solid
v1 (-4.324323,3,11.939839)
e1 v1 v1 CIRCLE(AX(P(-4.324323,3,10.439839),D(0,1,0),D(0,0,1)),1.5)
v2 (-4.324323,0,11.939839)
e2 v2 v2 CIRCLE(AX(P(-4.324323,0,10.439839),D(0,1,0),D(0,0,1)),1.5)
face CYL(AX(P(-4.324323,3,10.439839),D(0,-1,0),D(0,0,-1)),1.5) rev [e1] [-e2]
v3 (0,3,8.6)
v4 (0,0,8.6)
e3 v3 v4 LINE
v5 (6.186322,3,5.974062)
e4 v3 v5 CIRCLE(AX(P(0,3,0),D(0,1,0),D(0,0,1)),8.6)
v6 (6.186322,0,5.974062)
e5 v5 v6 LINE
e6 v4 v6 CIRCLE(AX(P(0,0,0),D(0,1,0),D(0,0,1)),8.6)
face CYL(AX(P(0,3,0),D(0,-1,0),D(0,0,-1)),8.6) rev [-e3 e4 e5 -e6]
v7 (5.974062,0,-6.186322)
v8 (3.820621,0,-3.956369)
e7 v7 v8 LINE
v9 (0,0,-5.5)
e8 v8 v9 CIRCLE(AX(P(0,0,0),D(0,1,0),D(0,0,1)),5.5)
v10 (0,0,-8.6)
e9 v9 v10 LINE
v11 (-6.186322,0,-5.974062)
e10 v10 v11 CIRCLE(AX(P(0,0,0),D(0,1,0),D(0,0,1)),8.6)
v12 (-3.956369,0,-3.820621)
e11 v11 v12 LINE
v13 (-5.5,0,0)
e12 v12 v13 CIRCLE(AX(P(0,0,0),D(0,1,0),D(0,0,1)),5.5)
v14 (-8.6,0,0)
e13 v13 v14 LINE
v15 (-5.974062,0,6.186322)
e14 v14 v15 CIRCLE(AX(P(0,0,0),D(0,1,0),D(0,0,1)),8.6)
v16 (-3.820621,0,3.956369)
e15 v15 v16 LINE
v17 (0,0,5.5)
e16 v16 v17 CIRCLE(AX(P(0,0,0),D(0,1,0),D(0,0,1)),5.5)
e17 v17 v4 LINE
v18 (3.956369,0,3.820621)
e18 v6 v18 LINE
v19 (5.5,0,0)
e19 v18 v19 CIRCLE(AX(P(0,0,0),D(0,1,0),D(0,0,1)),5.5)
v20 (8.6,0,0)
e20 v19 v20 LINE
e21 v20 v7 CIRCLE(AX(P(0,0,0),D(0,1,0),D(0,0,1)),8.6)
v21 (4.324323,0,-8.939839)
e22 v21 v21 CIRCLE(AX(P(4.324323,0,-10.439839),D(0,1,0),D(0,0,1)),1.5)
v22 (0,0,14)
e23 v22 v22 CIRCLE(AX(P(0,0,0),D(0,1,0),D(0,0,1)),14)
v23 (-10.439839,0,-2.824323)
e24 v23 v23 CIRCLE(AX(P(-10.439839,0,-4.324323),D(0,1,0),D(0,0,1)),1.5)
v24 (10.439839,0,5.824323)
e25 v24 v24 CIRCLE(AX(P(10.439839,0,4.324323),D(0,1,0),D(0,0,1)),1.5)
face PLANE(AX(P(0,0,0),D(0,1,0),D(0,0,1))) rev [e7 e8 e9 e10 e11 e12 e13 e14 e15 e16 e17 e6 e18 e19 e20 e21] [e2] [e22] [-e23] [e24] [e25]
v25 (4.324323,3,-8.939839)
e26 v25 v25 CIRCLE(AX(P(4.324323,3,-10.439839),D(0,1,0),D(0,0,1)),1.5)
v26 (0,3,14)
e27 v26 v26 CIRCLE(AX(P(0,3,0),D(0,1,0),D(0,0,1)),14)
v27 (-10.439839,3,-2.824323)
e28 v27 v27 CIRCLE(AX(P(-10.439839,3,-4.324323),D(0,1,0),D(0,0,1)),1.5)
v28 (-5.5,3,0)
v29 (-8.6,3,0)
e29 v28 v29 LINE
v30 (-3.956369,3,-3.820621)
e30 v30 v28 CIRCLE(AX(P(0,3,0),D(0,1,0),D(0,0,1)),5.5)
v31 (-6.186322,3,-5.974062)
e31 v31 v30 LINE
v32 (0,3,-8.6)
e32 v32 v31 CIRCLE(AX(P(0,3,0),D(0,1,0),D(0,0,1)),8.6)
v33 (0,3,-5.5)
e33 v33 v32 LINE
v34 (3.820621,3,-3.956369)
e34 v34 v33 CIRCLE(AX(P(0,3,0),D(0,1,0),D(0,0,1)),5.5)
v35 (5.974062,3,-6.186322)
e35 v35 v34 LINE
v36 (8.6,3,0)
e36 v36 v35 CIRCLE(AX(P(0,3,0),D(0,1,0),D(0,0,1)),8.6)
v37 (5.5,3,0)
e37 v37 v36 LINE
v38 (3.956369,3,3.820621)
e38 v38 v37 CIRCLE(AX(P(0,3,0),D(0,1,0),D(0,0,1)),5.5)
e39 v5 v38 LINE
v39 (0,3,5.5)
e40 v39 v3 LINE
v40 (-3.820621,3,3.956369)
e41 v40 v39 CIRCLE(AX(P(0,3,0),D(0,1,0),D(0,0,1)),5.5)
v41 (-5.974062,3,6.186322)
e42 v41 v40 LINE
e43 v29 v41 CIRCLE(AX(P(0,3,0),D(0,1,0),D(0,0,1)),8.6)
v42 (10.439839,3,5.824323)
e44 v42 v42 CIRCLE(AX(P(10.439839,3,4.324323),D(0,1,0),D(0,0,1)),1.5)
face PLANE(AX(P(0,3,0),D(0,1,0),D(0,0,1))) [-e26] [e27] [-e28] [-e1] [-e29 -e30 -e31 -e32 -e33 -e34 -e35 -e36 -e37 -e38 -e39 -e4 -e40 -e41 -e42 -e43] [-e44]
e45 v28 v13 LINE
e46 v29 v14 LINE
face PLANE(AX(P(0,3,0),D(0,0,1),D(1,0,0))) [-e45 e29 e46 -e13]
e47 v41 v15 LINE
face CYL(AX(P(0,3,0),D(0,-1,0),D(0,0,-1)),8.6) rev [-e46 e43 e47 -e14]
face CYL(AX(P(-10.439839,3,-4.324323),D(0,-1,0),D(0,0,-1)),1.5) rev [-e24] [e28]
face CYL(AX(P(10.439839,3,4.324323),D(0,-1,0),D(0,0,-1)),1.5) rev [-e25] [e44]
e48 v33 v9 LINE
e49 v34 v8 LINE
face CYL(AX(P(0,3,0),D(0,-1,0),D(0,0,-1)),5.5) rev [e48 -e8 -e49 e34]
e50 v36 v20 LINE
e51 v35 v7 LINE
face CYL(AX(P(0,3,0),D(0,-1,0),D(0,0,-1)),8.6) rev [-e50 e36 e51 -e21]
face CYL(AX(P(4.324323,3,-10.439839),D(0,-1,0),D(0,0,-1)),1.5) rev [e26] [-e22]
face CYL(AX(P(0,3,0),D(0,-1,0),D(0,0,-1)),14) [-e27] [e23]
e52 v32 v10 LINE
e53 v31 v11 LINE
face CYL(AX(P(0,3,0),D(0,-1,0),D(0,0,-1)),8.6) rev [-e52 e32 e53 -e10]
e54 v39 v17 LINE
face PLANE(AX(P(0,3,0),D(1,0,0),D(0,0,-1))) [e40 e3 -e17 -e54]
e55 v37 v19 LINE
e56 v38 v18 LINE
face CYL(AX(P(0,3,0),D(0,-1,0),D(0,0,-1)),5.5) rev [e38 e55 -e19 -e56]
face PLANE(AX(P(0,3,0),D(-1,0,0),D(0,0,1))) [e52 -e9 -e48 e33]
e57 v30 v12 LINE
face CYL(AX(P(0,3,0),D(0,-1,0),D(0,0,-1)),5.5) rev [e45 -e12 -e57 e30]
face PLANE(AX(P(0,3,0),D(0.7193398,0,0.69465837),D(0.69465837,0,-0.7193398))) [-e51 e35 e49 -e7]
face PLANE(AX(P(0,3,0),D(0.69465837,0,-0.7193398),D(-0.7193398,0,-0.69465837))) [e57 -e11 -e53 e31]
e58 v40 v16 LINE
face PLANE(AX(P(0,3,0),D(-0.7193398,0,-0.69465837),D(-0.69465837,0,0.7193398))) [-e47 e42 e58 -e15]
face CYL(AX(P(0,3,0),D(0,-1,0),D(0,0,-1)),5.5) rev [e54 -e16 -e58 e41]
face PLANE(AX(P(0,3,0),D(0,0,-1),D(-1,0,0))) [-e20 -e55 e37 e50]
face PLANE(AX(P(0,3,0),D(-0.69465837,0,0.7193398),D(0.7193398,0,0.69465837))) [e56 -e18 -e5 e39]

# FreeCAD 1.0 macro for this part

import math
import FreeCAD as App
import Part
import Sketcher

V = App.Vector
Q = App.Units.Quantity

doc = App.newDocument("Part")
body = doc.addObject("PartDesign::Body", "Body")

# Sketch on XZ plane
sketch1 = body.newObject("Sketcher::SketchObject", "Sketch")
sketch1.AttachmentSupport = (doc.getObject("XZ_Plane"), [""])
sketch1.MapMode = "FlatFace"
sketch1.addGeometry([
    Part.Circle(V(0, 0, 0), V(0, 0, 1), 14),  # 0
    Part.Circle(V(-4.3, 10.4, 0), V(0, 0, 1), 1.5),  # 1
    Part.ArcOfCircle(Part.Circle(V(0, 0, 0), V(0, 0, 1), 5.5), math.radians(90), math.radians(134)),  # 2
    Part.LineSegment(V(-3.8, 4, 0), V(-6, 6.2, 0)),  # 3
    Part.ArcOfCircle(Part.Circle(V(0, 0, 0), V(0, 0, 1), 8.6), math.radians(134), math.radians(180)),  # 4
    Part.LineSegment(V(-8.6, 0, 0), V(-5.5, 0, 0)),  # 5
    Part.ArcOfCircle(Part.Circle(V(0, 0, 0), V(0, 0, 1), 5.5), math.radians(-180), math.radians(-136)),  # 6
    Part.LineSegment(V(-4, -3.8, 0), V(-6.2, -6, 0)),  # 7
    Part.ArcOfCircle(Part.Circle(V(0, 0, 0), V(0, 0, 1), 8.6), math.radians(-136), math.radians(-90)),  # 8
    Part.LineSegment(V(0, -8.6, 0), V(0, -5.5, 0)),  # 9
    Part.ArcOfCircle(Part.Circle(V(0, 0, 0), V(0, 0, 1), 5.5), math.radians(-90), math.radians(-46)),  # 10
    Part.LineSegment(V(3.8, -4, 0), V(6, -6.2, 0)),  # 11
    Part.ArcOfCircle(Part.Circle(V(0, 0, 0), V(0, 0, 1), 8.6), math.radians(-46), math.radians(0)),  # 12
    Part.LineSegment(V(8.6, 0, 0), V(5.5, 0, 0)),  # 13
    Part.ArcOfCircle(Part.Circle(V(0, 0, 0), V(0, 0, 1), 5.5), math.radians(0), math.radians(44)),  # 14
    Part.LineSegment(V(4, 3.8, 0), V(6.2, 6, 0)),  # 15
    Part.ArcOfCircle(Part.Circle(V(0, 0, 0), V(0, 0, 1), 8.6), math.radians(44), math.radians(90)),  # 16
    Part.LineSegment(V(0, 8.6, 0), V(0, 5.5, 0)),  # 17
    Part.Circle(V(10.4, 4.3, 0), V(0, 0, 1), 1.5),  # 18
    Part.Circle(V(-10.4, -4.3, 0), V(0, 0, 1), 1.5),  # 19
    Part.Circle(V(4.3, -10.4, 0), V(0, 0, 1), 1.5),  # 20
], False)
sketch1.addConstraint([
    Sketcher.Constraint("Coincident", 2, 2, 3, 1),
    Sketcher.Constraint("Coincident", 3, 2, 4, 1),
    Sketcher.Constraint("Coincident", 4, 2, 5, 1),
    Sketcher.Constraint("Coincident", 5, 2, 6, 1),
    Sketcher.Constraint("Coincident", 6, 2, 7, 1),
    Sketcher.Constraint("Coincident", 7, 2, 8, 1),
    Sketcher.Constraint("Coincident", 8, 2, 9, 1),
    Sketcher.Constraint("Coincident", 9, 2, 10, 1),
    Sketcher.Constraint("Coincident", 10, 2, 11, 1),
    Sketcher.Constraint("Coincident", 11, 2, 12, 1),
    Sketcher.Constraint("Coincident", 12, 2, 13, 1),
    Sketcher.Constraint("Coincident", 13, 2, 14, 1),
    Sketcher.Constraint("Coincident", 14, 2, 15, 1),
    Sketcher.Constraint("Coincident", 15, 2, 16, 1),
    Sketcher.Constraint("Coincident", 16, 2, 17, 1),
    Sketcher.Constraint("Coincident", 17, 2, 2, 1),
    Sketcher.Constraint("Horizontal", 5),
    Sketcher.Constraint("Vertical", 9),
    Sketcher.Constraint("Horizontal", 13),
    Sketcher.Constraint("Vertical", 17),
    Sketcher.Constraint("Coincident", 0, 3, -1, 1),
    Sketcher.Constraint("Coincident", 2, 3, -1, 1),
    Sketcher.Constraint("Coincident", 4, 3, -1, 1),
    Sketcher.Constraint("Coincident", 6, 3, -1, 1),
    Sketcher.Constraint("Coincident", 8, 3, -1, 1),
    Sketcher.Constraint("Coincident", 10, 3, -1, 1),
    Sketcher.Constraint("Coincident", 12, 3, -1, 1),
    Sketcher.Constraint("Coincident", 14, 3, -1, 1),
    Sketcher.Constraint("Coincident", 16, 3, -1, 1),
    Sketcher.Constraint("Equal", 2, 6),
    Sketcher.Constraint("Equal", 4, 8),
    Sketcher.Constraint("Equal", 6, 10),
    Sketcher.Constraint("Equal", 8, 12),
    Sketcher.Constraint("Equal", 10, 14),
    Sketcher.Constraint("Equal", 12, 16),
    Sketcher.Constraint("Equal", 1, 18),
    Sketcher.Constraint("Equal", 18, 19),
    Sketcher.Constraint("Equal", 19, 20),
    Sketcher.Constraint("Symmetric", 18, 3, 19, 3, -1, 1),
    Sketcher.Constraint("Symmetric", 1, 3, 20, 3, -1, 1),
    Sketcher.Constraint("PointOnObject", 4, 2, -1),
    Sketcher.Constraint("PointOnObject", 8, 2, -2),
    Sketcher.Constraint("PointOnObject", 12, 2, -1),
    Sketcher.Constraint("PointOnObject", 16, 2, -2),
    Sketcher.Constraint("Perpendicular", 3, 7),
    Sketcher.Constraint("Perpendicular", 7, 11),
    Sketcher.Constraint("Perpendicular", 11, 15),
    Sketcher.Constraint("Diameter", 0, 28.0),
    Sketcher.Constraint("Diameter", 1, 3.0),
    Sketcher.Constraint("Radius", 2, 5.5),
    Sketcher.Constraint("Radius", 4, 8.6),
    Sketcher.Constraint("Angle", 3, Q("134 deg")),
    Sketcher.Constraint("DistanceY", -1, 1, 1, 3, 10.439839),
    Sketcher.Constraint("DistanceX", -1, 1, 18, 3, 10.439839),
    Sketcher.Constraint("DistanceX", 2, 2, -1, 1, 3.820621),
    Sketcher.Constraint("DistanceX", 6, 2, -1, 1, 3.956369),
    Sketcher.Constraint("DistanceX", -1, 1, 10, 2, 3.820621),
    Sketcher.Constraint("DistanceX", -1, 1, 14, 2, 3.956369),
    Sketcher.Constraint("DistanceX", 3, 2, 1, 3, 1.649739),
    Sketcher.Constraint("DistanceY", 7, 2, 19, 3, 1.649739),
])
pad1 = body.newObject("PartDesign::Pad", "Pad")
pad1.Profile = sketch1
pad1.Length = 3
pad1.Reversed = True

doc.recompute()
